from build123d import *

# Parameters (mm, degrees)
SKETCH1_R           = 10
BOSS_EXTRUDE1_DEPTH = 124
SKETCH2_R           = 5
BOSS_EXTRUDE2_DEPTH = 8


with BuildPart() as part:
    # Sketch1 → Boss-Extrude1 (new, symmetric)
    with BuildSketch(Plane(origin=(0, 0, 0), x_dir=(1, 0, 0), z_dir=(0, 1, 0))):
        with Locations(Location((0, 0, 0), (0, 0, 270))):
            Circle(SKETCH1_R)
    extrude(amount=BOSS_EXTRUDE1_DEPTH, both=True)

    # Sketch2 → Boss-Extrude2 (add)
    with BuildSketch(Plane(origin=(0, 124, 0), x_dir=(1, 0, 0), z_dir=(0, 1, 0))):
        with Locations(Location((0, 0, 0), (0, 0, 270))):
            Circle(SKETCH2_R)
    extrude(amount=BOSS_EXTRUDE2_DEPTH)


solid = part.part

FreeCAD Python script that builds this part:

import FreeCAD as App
import Part
import Sketcher
from FreeCAD import Vector

doc = App.newDocument("Part")
body = doc.addObject("PartDesign::Body", "Body")

# Sketch on XZ plane
sketch1 = doc.addObject("Sketcher::SketchObject", "Sketch")
body.addObject(sketch1)
sketch1.AttachmentSupport = (doc.XZ_Plane, [""])
sketch1.MapMode = "FlatFace"
sketch1.addGeometry(Part.Circle(Vector(0, 0, 0), Vector(0, 0, 1), 10), False)
sketch1.addConstraint(Sketcher.Constraint("Coincident", 0, 3, -1, 1))
sketch1.addConstraint(Sketcher.Constraint("Diameter", 0, 20.0))
pad1 = doc.addObject("PartDesign::Pad", "Pad")
body.addObject(pad1)
pad1.Profile = sketch1
pad1.Length = 248
pad1.Midplane = True

# Sketch on XZ plane
sketch2 = doc.addObject("Sketcher::SketchObject", "Sketch001")
body.addObject(sketch2)
sketch2.AttachmentSupport = (doc.XZ_Plane, [""])
sketch2.MapMode = "FlatFace"
sketch2.AttachmentOffset = App.Placement(Vector(0, 0, -124), App.Rotation())
sketch2.addGeometry(Part.Circle(Vector(0, 0, 0), Vector(0, 0, 1), 5), False)
sketch2.addConstraint(Sketcher.Constraint("Coincident", 0, 3, -1, 1))
sketch2.addConstraint(Sketcher.Constraint("Diameter", 0, 10.0))
pad2 = doc.addObject("PartDesign::Pad", "Pad001")
body.addObject(pad2)
pad2.Profile = sketch2
pad2.Length = 8
pad2.Reversed = True

doc.recompute()
